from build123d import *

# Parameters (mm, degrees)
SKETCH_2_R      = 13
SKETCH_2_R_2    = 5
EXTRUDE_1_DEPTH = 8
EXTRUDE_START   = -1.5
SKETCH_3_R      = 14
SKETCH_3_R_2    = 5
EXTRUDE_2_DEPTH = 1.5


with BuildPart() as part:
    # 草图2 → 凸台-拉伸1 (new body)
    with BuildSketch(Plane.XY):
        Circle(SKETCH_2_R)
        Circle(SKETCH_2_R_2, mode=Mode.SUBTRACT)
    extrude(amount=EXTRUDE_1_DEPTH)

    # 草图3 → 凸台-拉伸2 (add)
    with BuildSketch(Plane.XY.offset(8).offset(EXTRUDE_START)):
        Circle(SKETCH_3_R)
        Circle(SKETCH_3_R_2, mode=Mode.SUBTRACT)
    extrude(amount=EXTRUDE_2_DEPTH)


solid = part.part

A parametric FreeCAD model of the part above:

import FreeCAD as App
import Part
import Sketcher
Q = App.Units.Quantity

doc = App.newDocument("Part")
body = doc.addObject("PartDesign::Body", "Body")

# Sketch on XY plane
sketch1 = doc.addObject("Sketcher::SketchObject", "Sketch")
body.addObject(sketch1)
sketch1.AttachmentSupport = (doc.XY_Plane, [""])
sketch1.MapMode = "FlatFace"
sketch1.addGeometry([
    Part.Circle(App.Vector(0, 0, 0), App.Vector(0, 0, 1), 13),
    Part.Circle(App.Vector(0, 0, 0), App.Vector(0, 0, 1), 5),
], False)
sketch1.addConstraint([
    Sketcher.Constraint("Coincident", 0, 3, -1, 1),
    Sketcher.Constraint("Coincident", 1, 3, -1, 1),
    Sketcher.Constraint("Diameter", 0, Q("26 mm")),
    Sketcher.Constraint("Diameter", 1, Q("10 mm")),
])
pad1 = doc.addObject("PartDesign::Pad", "Pad")
body.addObject(pad1)
pad1.Profile = sketch1
pad1.Length = 8

# Sketch on XY plane
sketch2 = doc.addObject("Sketcher::SketchObject", "Sketch001")
body.addObject(sketch2)
sketch2.AttachmentSupport = (doc.XY_Plane, [""])
sketch2.MapMode = "FlatFace"
sketch2.AttachmentOffset = App.Placement(App.Vector(0, 0, 6.5), App.Rotation())
sketch2.addGeometry([
    Part.Circle(App.Vector(0, 0, 0), App.Vector(0, 0, 1), 14),
    Part.Circle(App.Vector(0, 0, 0), App.Vector(0, 0, 1), 5),
], False)
sketch2.addConstraint([
    Sketcher.Constraint("Coincident", 0, 3, -1, 1),
    Sketcher.Constraint("Coincident", 1, 3, -1, 1),
    Sketcher.Constraint("Diameter", 0, Q("28 mm")),
    Sketcher.Constraint("Diameter", 1, Q("10 mm")),
])
pad2 = doc.addObject("PartDesign::Pad", "Pad001")
body.addObject(pad2)
pad2.Profile = sketch2
pad2.Length = 1.5

doc.recompute()
